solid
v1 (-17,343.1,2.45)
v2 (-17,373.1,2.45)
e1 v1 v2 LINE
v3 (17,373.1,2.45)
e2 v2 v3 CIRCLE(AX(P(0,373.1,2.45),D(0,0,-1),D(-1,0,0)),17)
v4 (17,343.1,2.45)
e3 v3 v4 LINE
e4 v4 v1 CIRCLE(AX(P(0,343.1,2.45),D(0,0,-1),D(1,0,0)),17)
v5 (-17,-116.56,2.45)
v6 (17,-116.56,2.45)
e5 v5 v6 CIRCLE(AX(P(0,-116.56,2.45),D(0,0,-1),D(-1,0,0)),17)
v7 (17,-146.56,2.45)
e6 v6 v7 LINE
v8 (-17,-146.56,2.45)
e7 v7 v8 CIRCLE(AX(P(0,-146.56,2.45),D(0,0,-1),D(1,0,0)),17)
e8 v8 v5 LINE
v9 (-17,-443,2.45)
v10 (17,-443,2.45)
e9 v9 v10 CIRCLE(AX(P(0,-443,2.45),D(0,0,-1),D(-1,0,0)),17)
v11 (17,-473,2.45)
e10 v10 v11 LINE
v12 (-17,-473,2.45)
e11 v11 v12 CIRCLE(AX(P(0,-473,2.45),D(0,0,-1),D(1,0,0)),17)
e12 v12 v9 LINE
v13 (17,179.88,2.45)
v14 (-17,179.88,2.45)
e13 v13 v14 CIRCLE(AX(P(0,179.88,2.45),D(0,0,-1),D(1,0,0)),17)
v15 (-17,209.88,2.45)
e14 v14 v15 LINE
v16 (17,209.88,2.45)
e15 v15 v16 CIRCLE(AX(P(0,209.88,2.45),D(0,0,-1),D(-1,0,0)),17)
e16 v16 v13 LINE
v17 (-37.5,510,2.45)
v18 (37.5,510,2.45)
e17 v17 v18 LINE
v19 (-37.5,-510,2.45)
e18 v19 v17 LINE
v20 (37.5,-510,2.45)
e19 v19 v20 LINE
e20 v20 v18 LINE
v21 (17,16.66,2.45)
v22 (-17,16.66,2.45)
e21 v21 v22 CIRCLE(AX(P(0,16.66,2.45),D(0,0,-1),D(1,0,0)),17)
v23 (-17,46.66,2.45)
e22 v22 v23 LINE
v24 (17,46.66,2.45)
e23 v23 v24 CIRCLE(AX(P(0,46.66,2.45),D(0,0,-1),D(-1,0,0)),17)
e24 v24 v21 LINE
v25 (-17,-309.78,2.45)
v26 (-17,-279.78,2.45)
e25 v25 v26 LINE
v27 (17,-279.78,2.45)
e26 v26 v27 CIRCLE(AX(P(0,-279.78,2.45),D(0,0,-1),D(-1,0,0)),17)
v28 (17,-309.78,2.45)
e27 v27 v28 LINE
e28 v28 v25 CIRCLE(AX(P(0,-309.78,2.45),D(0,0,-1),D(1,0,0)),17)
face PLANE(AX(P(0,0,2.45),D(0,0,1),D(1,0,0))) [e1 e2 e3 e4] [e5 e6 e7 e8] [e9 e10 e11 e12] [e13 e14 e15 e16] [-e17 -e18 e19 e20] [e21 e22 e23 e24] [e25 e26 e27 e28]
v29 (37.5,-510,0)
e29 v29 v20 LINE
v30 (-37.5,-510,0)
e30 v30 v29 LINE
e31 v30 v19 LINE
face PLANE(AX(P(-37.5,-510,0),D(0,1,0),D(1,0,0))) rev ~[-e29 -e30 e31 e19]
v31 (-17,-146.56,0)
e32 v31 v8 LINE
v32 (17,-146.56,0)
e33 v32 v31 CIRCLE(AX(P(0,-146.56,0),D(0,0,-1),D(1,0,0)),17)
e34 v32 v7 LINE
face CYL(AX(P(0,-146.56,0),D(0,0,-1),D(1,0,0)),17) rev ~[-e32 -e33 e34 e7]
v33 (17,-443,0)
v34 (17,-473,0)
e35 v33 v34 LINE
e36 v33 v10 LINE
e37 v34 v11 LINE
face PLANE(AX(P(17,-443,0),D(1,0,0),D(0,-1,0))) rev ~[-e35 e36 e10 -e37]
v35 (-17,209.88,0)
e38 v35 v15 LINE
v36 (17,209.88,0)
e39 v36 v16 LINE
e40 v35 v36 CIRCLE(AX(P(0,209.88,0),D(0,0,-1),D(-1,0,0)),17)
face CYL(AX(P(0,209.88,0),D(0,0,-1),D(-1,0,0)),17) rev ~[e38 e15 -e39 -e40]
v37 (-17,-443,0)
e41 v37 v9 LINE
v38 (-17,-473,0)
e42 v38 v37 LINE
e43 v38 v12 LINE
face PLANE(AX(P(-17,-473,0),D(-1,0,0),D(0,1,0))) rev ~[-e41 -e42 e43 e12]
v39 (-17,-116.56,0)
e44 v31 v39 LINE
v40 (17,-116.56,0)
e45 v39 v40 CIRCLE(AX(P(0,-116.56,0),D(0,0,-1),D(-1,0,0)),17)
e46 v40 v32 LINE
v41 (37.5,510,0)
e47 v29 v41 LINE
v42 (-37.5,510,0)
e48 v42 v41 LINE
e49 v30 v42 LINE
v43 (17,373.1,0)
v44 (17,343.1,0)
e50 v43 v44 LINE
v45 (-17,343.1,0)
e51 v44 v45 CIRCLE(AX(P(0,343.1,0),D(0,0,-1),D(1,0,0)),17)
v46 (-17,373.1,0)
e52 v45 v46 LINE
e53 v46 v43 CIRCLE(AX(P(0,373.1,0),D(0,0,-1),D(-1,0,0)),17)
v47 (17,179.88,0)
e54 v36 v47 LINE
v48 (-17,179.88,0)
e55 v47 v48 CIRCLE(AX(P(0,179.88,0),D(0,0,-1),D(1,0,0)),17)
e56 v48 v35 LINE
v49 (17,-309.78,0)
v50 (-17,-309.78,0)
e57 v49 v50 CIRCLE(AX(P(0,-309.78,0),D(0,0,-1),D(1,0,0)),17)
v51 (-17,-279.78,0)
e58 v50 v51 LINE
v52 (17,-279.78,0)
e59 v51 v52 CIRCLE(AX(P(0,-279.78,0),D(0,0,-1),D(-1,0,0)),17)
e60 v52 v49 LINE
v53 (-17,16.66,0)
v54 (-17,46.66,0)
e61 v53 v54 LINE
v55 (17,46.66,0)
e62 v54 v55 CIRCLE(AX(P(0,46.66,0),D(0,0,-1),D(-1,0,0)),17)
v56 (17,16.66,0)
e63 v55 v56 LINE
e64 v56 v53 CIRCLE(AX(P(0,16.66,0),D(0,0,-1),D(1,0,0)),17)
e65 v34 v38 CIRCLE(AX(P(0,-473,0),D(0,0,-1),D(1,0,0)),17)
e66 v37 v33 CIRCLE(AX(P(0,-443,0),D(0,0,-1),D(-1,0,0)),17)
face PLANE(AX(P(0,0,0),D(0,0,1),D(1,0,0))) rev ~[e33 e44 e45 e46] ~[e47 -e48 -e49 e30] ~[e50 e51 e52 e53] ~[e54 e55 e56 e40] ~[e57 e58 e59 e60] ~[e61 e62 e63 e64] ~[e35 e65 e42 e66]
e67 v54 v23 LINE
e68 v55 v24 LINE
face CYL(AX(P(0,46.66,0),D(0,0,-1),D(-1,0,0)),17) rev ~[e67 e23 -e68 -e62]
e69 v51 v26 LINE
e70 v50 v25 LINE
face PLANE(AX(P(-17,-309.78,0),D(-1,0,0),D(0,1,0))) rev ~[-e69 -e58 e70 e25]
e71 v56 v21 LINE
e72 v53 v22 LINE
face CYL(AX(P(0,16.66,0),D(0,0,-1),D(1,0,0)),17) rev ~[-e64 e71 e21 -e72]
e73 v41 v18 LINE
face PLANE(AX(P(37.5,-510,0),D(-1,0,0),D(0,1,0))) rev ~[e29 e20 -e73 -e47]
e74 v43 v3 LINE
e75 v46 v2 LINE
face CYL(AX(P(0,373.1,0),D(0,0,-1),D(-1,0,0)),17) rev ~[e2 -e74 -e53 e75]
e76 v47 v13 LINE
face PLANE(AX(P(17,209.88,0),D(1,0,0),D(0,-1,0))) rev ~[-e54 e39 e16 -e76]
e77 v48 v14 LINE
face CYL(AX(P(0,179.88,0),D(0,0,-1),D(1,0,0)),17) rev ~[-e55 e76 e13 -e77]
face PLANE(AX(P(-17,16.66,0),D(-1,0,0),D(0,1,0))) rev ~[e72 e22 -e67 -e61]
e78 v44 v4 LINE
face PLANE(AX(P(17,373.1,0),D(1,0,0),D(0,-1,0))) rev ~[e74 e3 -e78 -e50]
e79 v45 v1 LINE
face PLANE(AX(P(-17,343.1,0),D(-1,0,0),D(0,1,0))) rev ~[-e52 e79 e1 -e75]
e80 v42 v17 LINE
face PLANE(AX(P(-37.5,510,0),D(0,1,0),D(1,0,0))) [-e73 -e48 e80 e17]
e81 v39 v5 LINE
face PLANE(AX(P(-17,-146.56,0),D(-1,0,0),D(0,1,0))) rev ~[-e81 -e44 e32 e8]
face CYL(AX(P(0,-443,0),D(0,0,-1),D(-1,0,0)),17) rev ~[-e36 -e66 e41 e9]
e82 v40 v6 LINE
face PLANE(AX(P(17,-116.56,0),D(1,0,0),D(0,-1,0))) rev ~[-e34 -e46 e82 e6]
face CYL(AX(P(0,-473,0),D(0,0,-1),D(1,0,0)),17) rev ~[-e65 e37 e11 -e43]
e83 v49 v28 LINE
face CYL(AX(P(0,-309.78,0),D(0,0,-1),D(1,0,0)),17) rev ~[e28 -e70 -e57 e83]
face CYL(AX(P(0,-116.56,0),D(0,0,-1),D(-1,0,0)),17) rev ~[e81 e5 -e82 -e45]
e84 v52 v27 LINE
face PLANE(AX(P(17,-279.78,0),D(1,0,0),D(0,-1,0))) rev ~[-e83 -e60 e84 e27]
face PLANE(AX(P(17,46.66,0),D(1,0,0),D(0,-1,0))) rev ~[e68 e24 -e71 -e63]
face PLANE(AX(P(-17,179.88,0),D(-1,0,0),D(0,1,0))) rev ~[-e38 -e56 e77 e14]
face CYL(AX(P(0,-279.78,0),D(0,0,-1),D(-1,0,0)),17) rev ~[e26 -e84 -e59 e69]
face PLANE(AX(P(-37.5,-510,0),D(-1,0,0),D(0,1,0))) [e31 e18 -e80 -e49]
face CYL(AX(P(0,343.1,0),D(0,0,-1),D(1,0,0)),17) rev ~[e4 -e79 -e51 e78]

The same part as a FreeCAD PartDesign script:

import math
import FreeCAD as App
import Part
import Sketcher
from FreeCAD import Vector
Q = App.Units.Quantity


def add_polygon(sketch, points):
    """Adds a closed chain of lines whose ends are joined by coincident constraints."""
    first, n = sketch.GeometryCount, len(points)
    for a, b in zip(points, points[1:] + points[:1]):
        sketch.addGeometry(Part.LineSegment(App.Vector(*a, 0), App.Vector(*b, 0)), False)
    for i in range(n):
        sketch.addConstraint(Sketcher.Constraint("Coincident", first + i, 2, first + (i + 1) % n, 1))

doc = App.newDocument("Part")
body = doc.addObject("PartDesign::Body", "Body")

sketch1 = doc.addObject("Sketcher::SketchObject", "Sketch")
body.addObject(sketch1)
sketch1.AttachmentSupport = (doc.XY_Plane, [""])
sketch1.MapMode = "FlatFace"
add_polygon(sketch1, [(-38, 510), (-38, -510), (38, -510), (38, 510)])
sketch1.addGeometry(Part.LineSegment(Vector(17, -443, 0), Vector(17, -473, 0)), False)
sketch1.addGeometry(Part.ArcOfCircle(Part.Circle(Vector(0, -473, 0), Vector(0, 0, 1), 17), math.radians(180), math.radians(360)), False)
sketch1.addGeometry(Part.LineSegment(Vector(-17, -473, 0), Vector(-17, -443, 0)), False)
sketch1.addGeometry(Part.ArcOfCircle(Part.Circle(Vector(0, -443, 0), Vector(0, 0, 1), 17), math.radians(0), math.radians(180)), False)
sketch1.addGeometry(Part.LineSegment(Vector(17, -280, 0), Vector(17, -310, 0)), False)
sketch1.addGeometry(Part.ArcOfCircle(Part.Circle(Vector(0, -310, 0), Vector(0, 0, 1), 17), math.radians(180), math.radians(360)), False)
sketch1.addGeometry(Part.LineSegment(Vector(-17, -310, 0), Vector(-17, -280, 0)), False)
sketch1.addGeometry(Part.ArcOfCircle(Part.Circle(Vector(0, -280, 0), Vector(0, 0, 1), 17), math.radians(0), math.radians(180)), False)
sketch1.addGeometry(Part.LineSegment(Vector(17, -117, 0), Vector(17, -147, 0)), False)
sketch1.addGeometry(Part.ArcOfCircle(Part.Circle(Vector(0, -147, 0), Vector(0, 0, 1), 17), math.radians(180), math.radians(360)), False)
sketch1.addGeometry(Part.LineSegment(Vector(-17, -147, 0), Vector(-17, -117, 0)), False)
sketch1.addGeometry(Part.ArcOfCircle(Part.Circle(Vector(0, -117, 0), Vector(0, 0, 1), 17), math.radians(0), math.radians(180)), False)
sketch1.addGeometry(Part.LineSegment(Vector(17, 47, 0), Vector(17, 17, 0)), False)
sketch1.addGeometry(Part.ArcOfCircle(Part.Circle(Vector(0, 17, 0), Vector(0, 0, 1), 17), math.radians(180), math.radians(360)), False)
sketch1.addGeometry(Part.LineSegment(Vector(-17, 17, 0), Vector(-17, 47, 0)), False)
sketch1.addGeometry(Part.ArcOfCircle(Part.Circle(Vector(0, 47, 0), Vector(0, 0, 1), 17), math.radians(0), math.radians(180)), False)
sketch1.addGeometry(Part.LineSegment(Vector(17, 210, 0), Vector(17, 180, 0)), False)
sketch1.addGeometry(Part.ArcOfCircle(Part.Circle(Vector(0, 180, 0), Vector(0, 0, 1), 17), math.radians(180), math.radians(360)), False)
sketch1.addGeometry(Part.LineSegment(Vector(-17, 180, 0), Vector(-17, 210, 0)), False)
sketch1.addGeometry(Part.ArcOfCircle(Part.Circle(Vector(0, 210, 0), Vector(0, 0, 1), 17), math.radians(0), math.radians(180)), False)
sketch1.addGeometry(Part.LineSegment(Vector(17, 373, 0), Vector(17, 343, 0)), False)
sketch1.addGeometry(Part.ArcOfCircle(Part.Circle(Vector(0, 343, 0), Vector(0, 0, 1), 17), math.radians(180), math.radians(360)), False)
sketch1.addGeometry(Part.LineSegment(Vector(-17, 343, 0), Vector(-17, 373, 0)), False)
sketch1.addGeometry(Part.ArcOfCircle(Part.Circle(Vector(0, 373, 0), Vector(0, 0, 1), 17), math.radians(0), math.radians(180)), False)
sketch1.addConstraint(Sketcher.Constraint("Tangent", 4, 2, 5, 2))
sketch1.addConstraint(Sketcher.Constraint("Tangent", 5, 1, 6, 1))
sketch1.addConstraint(Sketcher.Constraint("Tangent", 6, 2, 7, 2))
sketch1.addConstraint(Sketcher.Constraint("Tangent", 7, 1, 4, 1))
sketch1.addConstraint(Sketcher.Constraint("Tangent", 8, 2, 9, 2))
sketch1.addConstraint(Sketcher.Constraint("Tangent", 9, 1, 10, 1))
sketch1.addConstraint(Sketcher.Constraint("Tangent", 10, 2, 11, 2))
sketch1.addConstraint(Sketcher.Constraint("Tangent", 11, 1, 8, 1))
sketch1.addConstraint(Sketcher.Constraint("Tangent", 12, 2, 13, 2))
sketch1.addConstraint(Sketcher.Constraint("Tangent", 13, 1, 14, 1))
sketch1.addConstraint(Sketcher.Constraint("Tangent", 14, 2, 15, 2))
sketch1.addConstraint(Sketcher.Constraint("Tangent", 15, 1, 12, 1))
sketch1.addConstraint(Sketcher.Constraint("Tangent", 16, 2, 17, 2))
sketch1.addConstraint(Sketcher.Constraint("Tangent", 17, 1, 18, 1))
sketch1.addConstraint(Sketcher.Constraint("Tangent", 18, 2, 19, 2))
sketch1.addConstraint(Sketcher.Constraint("Tangent", 19, 1, 16, 1))
sketch1.addConstraint(Sketcher.Constraint("Tangent", 20, 2, 21, 2))
sketch1.addConstraint(Sketcher.Constraint("Tangent", 21, 1, 22, 1))
sketch1.addConstraint(Sketcher.Constraint("Tangent", 22, 2, 23, 2))
sketch1.addConstraint(Sketcher.Constraint("Tangent", 23, 1, 20, 1))
sketch1.addConstraint(Sketcher.Constraint("Tangent", 24, 2, 25, 2))
sketch1.addConstraint(Sketcher.Constraint("Tangent", 25, 1, 26, 1))
sketch1.addConstraint(Sketcher.Constraint("Tangent", 26, 2, 27, 2))
sketch1.addConstraint(Sketcher.Constraint("Tangent", 27, 1, 24, 1))
sketch1.addConstraint(Sketcher.Constraint("Vertical", 0))
sketch1.addConstraint(Sketcher.Constraint("Horizontal", 1))
sketch1.addConstraint(Sketcher.Constraint("Vertical", 2))
sketch1.addConstraint(Sketcher.Constraint("Horizontal", 3))
sketch1.addConstraint(Sketcher.Constraint("Vertical", 4))
sketch1.addConstraint(Sketcher.Constraint("Vertical", 6))
sketch1.addConstraint(Sketcher.Constraint("Vertical", 8))
sketch1.addConstraint(Sketcher.Constraint("Vertical", 10))
sketch1.addConstraint(Sketcher.Constraint("Vertical", 12))
sketch1.addConstraint(Sketcher.Constraint("Vertical", 14))
sketch1.addConstraint(Sketcher.Constraint("Vertical", 16))
sketch1.addConstraint(Sketcher.Constraint("Vertical", 18))
sketch1.addConstraint(Sketcher.Constraint("Vertical", 20))
sketch1.addConstraint(Sketcher.Constraint("Vertical", 22))
sketch1.addConstraint(Sketcher.Constraint("Vertical", 24))
sketch1.addConstraint(Sketcher.Constraint("Vertical", 26))
sketch1.addConstraint(Sketcher.Constraint("Equal", 7, 9))
sketch1.addConstraint(Sketcher.Constraint("Equal", 11, 13))
sketch1.addConstraint(Sketcher.Constraint("Equal", 15, 17))
sketch1.addConstraint(Sketcher.Constraint("Equal", 19, 21))
sketch1.addConstraint(Sketcher.Constraint("Equal", 23, 25))
sketch1.addConstraint(Sketcher.Constraint("Symmetric", 0, 2, 2, 2, -1, 1))
sketch1.addConstraint(Sketcher.Constraint("PointOnObject", 5, 3, -2))
sketch1.addConstraint(Sketcher.Constraint("PointOnObject", 9, 3, -2))
sketch1.addConstraint(Sketcher.Constraint("PointOnObject", 13, 3, -2))
sketch1.addConstraint(Sketcher.Constraint("PointOnObject", 17, 3, -2))
sketch1.addConstraint(Sketcher.Constraint("PointOnObject", 21, 3, -2))
sketch1.addConstraint(Sketcher.Constraint("PointOnObject", 25, 3, -2))
sketch1.addConstraint(Sketcher.Constraint("Equal", 6, 8))
sketch1.addConstraint(Sketcher.Constraint("Equal", 10, 12))
sketch1.addConstraint(Sketcher.Constraint("Equal", 14, 16))
sketch1.addConstraint(Sketcher.Constraint("Equal", 18, 20))
sketch1.addConstraint(Sketcher.Constraint("Equal", 22, 24))
sketch1.addConstraint(Sketcher.Constraint("Radius", 5, Q("17 mm")))
sketch1.addConstraint(Sketcher.Constraint("DistanceX", 1, 1, 1, 2, Q("75 mm")))
sketch1.addConstraint(Sketcher.Constraint("DistanceY", 0, 2, 0, 1, Q("1020 mm")))
sketch1.addConstraint(Sketcher.Constraint("DistanceY", 4, 2, 4, 1, Q("30 mm")))
sketch1.addConstraint(Sketcher.Constraint("DistanceY", 5, 3, -1, 1, Q("473 mm")))
sketch1.addConstraint(Sketcher.Constraint("DistanceY", -1, 1, 25, 3, Q("343.1 mm")))
sketch1.addConstraint(Sketcher.Constraint("DistanceY", 9, 3, -1, 1, Q("309.78 mm")))
sketch1.addConstraint(Sketcher.Constraint("DistanceY", 13, 3, -1, 1, Q("146.56 mm")))
sketch1.addConstraint(Sketcher.Constraint("DistanceY", -1, 1, 17, 3, Q("16.66 mm")))
sketch1.addConstraint(Sketcher.Constraint("DistanceY", -1, 1, 21, 3, Q("179.88 mm")))
pad1 = doc.addObject("PartDesign::Pad", "Pad")
body.addObject(pad1)
pad1.Profile = sketch1
pad1.Length = 2.45

doc.recompute()
